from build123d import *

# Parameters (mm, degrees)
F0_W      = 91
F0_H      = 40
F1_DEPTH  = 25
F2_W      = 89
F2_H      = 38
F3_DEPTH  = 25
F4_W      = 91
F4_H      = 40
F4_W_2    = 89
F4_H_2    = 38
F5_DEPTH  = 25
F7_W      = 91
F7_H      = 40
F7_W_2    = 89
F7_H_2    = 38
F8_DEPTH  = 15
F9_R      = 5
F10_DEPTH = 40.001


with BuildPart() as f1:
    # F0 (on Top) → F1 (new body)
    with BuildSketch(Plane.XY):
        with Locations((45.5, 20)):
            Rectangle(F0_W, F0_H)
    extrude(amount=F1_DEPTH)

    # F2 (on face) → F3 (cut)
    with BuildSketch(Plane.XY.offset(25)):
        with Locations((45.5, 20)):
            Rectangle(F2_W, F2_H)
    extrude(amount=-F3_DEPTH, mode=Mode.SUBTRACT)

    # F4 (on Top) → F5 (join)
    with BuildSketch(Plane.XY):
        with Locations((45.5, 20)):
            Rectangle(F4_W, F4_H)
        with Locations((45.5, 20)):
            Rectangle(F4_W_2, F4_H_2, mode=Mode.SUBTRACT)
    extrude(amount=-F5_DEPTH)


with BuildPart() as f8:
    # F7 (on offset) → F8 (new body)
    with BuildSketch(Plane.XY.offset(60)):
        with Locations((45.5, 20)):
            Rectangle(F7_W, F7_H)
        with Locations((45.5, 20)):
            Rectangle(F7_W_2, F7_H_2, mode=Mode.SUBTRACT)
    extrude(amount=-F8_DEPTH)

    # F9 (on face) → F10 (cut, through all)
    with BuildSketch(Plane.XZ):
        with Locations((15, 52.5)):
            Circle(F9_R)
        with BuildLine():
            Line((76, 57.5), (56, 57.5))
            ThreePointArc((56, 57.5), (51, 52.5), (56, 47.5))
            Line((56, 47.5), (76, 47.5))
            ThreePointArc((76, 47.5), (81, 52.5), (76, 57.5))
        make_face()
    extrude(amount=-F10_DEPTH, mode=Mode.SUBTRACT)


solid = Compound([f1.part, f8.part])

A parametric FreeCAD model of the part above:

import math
import FreeCAD as App
import Part
import Sketcher
Q = App.Units.Quantity


def add_polygon(sketch, points):
    """Adds a closed chain of lines whose ends are joined by coincident constraints."""
    first, n = sketch.GeometryCount, len(points)
    for a, b in zip(points, points[1:] + points[:1]):
        sketch.addGeometry(Part.LineSegment(App.Vector(*a, 0), App.Vector(*b, 0)), False)
    for i in range(n):
        sketch.addConstraint(Sketcher.Constraint("Coincident", first + i, 2, first + (i + 1) % n, 1))

doc = App.newDocument("Part")
params = doc.addObject("Spreadsheet::Sheet", "Params")
for row, (alias, value) in enumerate([
    ("sketch1_width", "91 mm"),
    ("sketch1_height", "40 mm"),
    ("pad1_length", "25 mm"),
    ("sketch2_width", "89 mm"),
    ("sketch2_height", "38 mm"),
    ("pocket1_length", "25 mm"),
    ("sketch3_width", "91 mm"),
    ("sketch3_width2", "89 mm"),
    ("sketch3_height", "40 mm"),
    ("sketch3_height2", "38 mm"),
    ("pad2_length", "25 mm"),
    ("sketch4_width", "91 mm"),
    ("sketch4_width2", "89 mm"),
    ("sketch4_height", "40 mm"),
    ("sketch4_height2", "38 mm"),
    ("pad3_length", "15 mm"),
    ("sketch5_diameter", "10 mm"),
    ("sketch5_width", "20 mm"),
], start=1):
    params.set(f"A{row}", alias)
    params.set(f"B{row}", "=" + value)
    params.setAlias(f"B{row}", alias)

body = doc.addObject("PartDesign::Body", "Body")

sketch1 = body.newObject("Sketcher::SketchObject", "Sketch")
sketch1.AttachmentSupport = (doc.getObject("XY_Plane"), [""])
sketch1.MapMode = "FlatFace"
add_polygon(sketch1, [(0, 40), (0, 0), (91, 0), (91, 40)])
sketch1.addConstraint(Sketcher.Constraint("Vertical", 0))
sketch1.addConstraint(Sketcher.Constraint("Horizontal", 1))
sketch1.addConstraint(Sketcher.Constraint("Vertical", 2))
sketch1.addConstraint(Sketcher.Constraint("Horizontal", 3))
sketch1.addConstraint(Sketcher.Constraint("Coincident", 0, 2, -1, 1))
sketch1.addConstraint(Sketcher.Constraint("DistanceX", 1, 1, 1, 2, Q("91 mm")))
sketch1.addConstraint(Sketcher.Constraint("DistanceY", 0, 2, 0, 1, Q("40 mm")))
sketch1.setExpression("Constraints[9]", "Params.sketch1_width")
sketch1.setExpression("Constraints[10]", "Params.sketch1_height")
pad1 = body.newObject("PartDesign::Pad", "Pad")
pad1.Profile = sketch1
pad1.setExpression("Length", "Params.pad1_length")

sketch2 = body.newObject("Sketcher::SketchObject", "Sketch001")
sketch2.AttachmentSupport = (doc.getObject("XY_Plane"), [""])
sketch2.MapMode = "FlatFace"
sketch2.AttachmentOffset = App.Placement(App.Vector(0, 0, 25), App.Rotation())
add_polygon(sketch2, [(1, 39), (1, 1), (90, 1), (90, 39)])
sketch2.addConstraint(Sketcher.Constraint("Vertical", 0))
sketch2.addConstraint(Sketcher.Constraint("Horizontal", 1))
sketch2.addConstraint(Sketcher.Constraint("Vertical", 2))
sketch2.addConstraint(Sketcher.Constraint("Horizontal", 3))
sketch2.addConstraint(Sketcher.Constraint("DistanceX", 1, 1, 1, 2, Q("89 mm")))
sketch2.addConstraint(Sketcher.Constraint("DistanceY", 0, 2, 0, 1, Q("38 mm")))
sketch2.addConstraint(Sketcher.Constraint("DistanceX", -1, 1, 0, 2, Q("1 mm")))
sketch2.addConstraint(Sketcher.Constraint("DistanceY", -1, 1, 0, 2, Q("1 mm")))
sketch2.setExpression("Constraints[8]", "Params.sketch2_width")
sketch2.setExpression("Constraints[9]", "Params.sketch2_height")
pocket1 = body.newObject("PartDesign::Pocket", "Pocket")
pocket1.Profile = sketch2
pocket1.setExpression("Length", "Params.pocket1_length")

sketch3 = body.newObject("Sketcher::SketchObject", "Sketch002")
sketch3.AttachmentSupport = (doc.getObject("XY_Plane"), [""])
sketch3.MapMode = "FlatFace"
add_polygon(sketch3, [(0, 40), (0, 0), (91, 0), (91, 40)])
add_polygon(sketch3, [(90, 1), (1, 1), (1, 39), (90, 39)])
sketch3.addConstraint(Sketcher.Constraint("Vertical", 0))
sketch3.addConstraint(Sketcher.Constraint("Horizontal", 1))
sketch3.addConstraint(Sketcher.Constraint("Vertical", 2))
sketch3.addConstraint(Sketcher.Constraint("Horizontal", 3))
sketch3.addConstraint(Sketcher.Constraint("Horizontal", 4))
sketch3.addConstraint(Sketcher.Constraint("Vertical", 5))
sketch3.addConstraint(Sketcher.Constraint("Horizontal", 6))
sketch3.addConstraint(Sketcher.Constraint("Vertical", 7))
sketch3.addConstraint(Sketcher.Constraint("Coincident", 0, 2, -1, 1))
sketch3.addConstraint(Sketcher.Constraint("DistanceX", 1, 1, 1, 2, Q("91 mm")))
sketch3.addConstraint(Sketcher.Constraint("DistanceX", 4, 2, 4, 1, Q("89 mm")))
sketch3.addConstraint(Sketcher.Constraint("DistanceY", 0, 2, 0, 1, Q("40 mm")))
sketch3.addConstraint(Sketcher.Constraint("DistanceY", 5, 1, 5, 2, Q("38 mm")))
sketch3.addConstraint(Sketcher.Constraint("DistanceX", -1, 1, 4, 2, Q("1 mm")))
sketch3.addConstraint(Sketcher.Constraint("DistanceY", -1, 1, 4, 2, Q("1 mm")))
sketch3.setExpression("Constraints[17]", "Params.sketch3_width")
sketch3.setExpression("Constraints[18]", "Params.sketch3_width2")
sketch3.setExpression("Constraints[19]", "Params.sketch3_height")
sketch3.setExpression("Constraints[20]", "Params.sketch3_height2")
pad2 = body.newObject("PartDesign::Pad", "Pad001")
pad2.Profile = sketch3
pad2.setExpression("Length", "Params.pad2_length")
pad2.Reversed = True
body2 = doc.addObject("PartDesign::Body", "Body001")

sketch4 = body2.newObject("Sketcher::SketchObject", "Sketch003")
sketch4.AttachmentSupport = (doc.getObject("XY_Plane001"), [""])
sketch4.MapMode = "FlatFace"
sketch4.AttachmentOffset = App.Placement(App.Vector(0, 0, 60), App.Rotation())
add_polygon(sketch4, [(0, 40), (0, 0), (91, 0), (91, 40)])
add_polygon(sketch4, [(90, 1), (1, 1), (1, 39), (90, 39)])
sketch4.addConstraint(Sketcher.Constraint("Vertical", 0))
sketch4.addConstraint(Sketcher.Constraint("Horizontal", 1))
sketch4.addConstraint(Sketcher.Constraint("Vertical", 2))
sketch4.addConstraint(Sketcher.Constraint("Horizontal", 3))
sketch4.addConstraint(Sketcher.Constraint("Horizontal", 4))
sketch4.addConstraint(Sketcher.Constraint("Vertical", 5))
sketch4.addConstraint(Sketcher.Constraint("Horizontal", 6))
sketch4.addConstraint(Sketcher.Constraint("Vertical", 7))
sketch4.addConstraint(Sketcher.Constraint("Coincident", 0, 2, -1, 1))
sketch4.addConstraint(Sketcher.Constraint("DistanceX", 1, 1, 1, 2, Q("91 mm")))
sketch4.addConstraint(Sketcher.Constraint("DistanceX", 4, 2, 4, 1, Q("89 mm")))
sketch4.addConstraint(Sketcher.Constraint("DistanceY", 0, 2, 0, 1, Q("40 mm")))
sketch4.addConstraint(Sketcher.Constraint("DistanceY", 5, 1, 5, 2, Q("38 mm")))
sketch4.addConstraint(Sketcher.Constraint("DistanceX", -1, 1, 4, 2, Q("1 mm")))
sketch4.addConstraint(Sketcher.Constraint("DistanceY", -1, 1, 4, 2, Q("1 mm")))
sketch4.setExpression("Constraints[17]", "Params.sketch4_width")
sketch4.setExpression("Constraints[18]", "Params.sketch4_width2")
sketch4.setExpression("Constraints[19]", "Params.sketch4_height")
sketch4.setExpression("Constraints[20]", "Params.sketch4_height2")
pad3 = body2.newObject("PartDesign::Pad", "Pad002")
pad3.Profile = sketch4
pad3.setExpression("Length", "Params.pad3_length")
pad3.Reversed = True

sketch5 = body2.newObject("Sketcher::SketchObject", "Sketch004")
sketch5.AttachmentSupport = (doc.getObject("XZ_Plane001"), [""])
sketch5.MapMode = "FlatFace"
sketch5.addGeometry(Part.Circle(App.Vector(15, 52, 0), App.Vector(0, 0, 1), 5), False)
sketch5.addGeometry(Part.LineSegment(App.Vector(76, 58, 0), App.Vector(56, 58, 0)), False)
sketch5.addGeometry(Part.ArcOfCircle(Part.Circle(App.Vector(56, 52, 0), App.Vector(0, 0, 1), 5), math.radians(90), math.radians(270)), False)
sketch5.addGeometry(Part.LineSegment(App.Vector(56, 48, 0), App.Vector(76, 48, 0)), False)
sketch5.addGeometry(Part.ArcOfCircle(Part.Circle(App.Vector(76, 52, 0), App.Vector(0, 0, 1), 5), math.radians(-90), math.radians(90)), False)
sketch5.addConstraint(Sketcher.Constraint("Tangent", 1, 2, 2, 1))
sketch5.addConstraint(Sketcher.Constraint("Tangent", 2, 2, 3, 1))
sketch5.addConstraint(Sketcher.Constraint("Tangent", 3, 2, 4, 1))
sketch5.addConstraint(Sketcher.Constraint("Tangent", 4, 2, 1, 1))
sketch5.addConstraint(Sketcher.Constraint("Horizontal", 1))
sketch5.addConstraint(Sketcher.Constraint("Horizontal", 3))
sketch5.addConstraint(Sketcher.Constraint("Equal", 0, 2))
sketch5.addConstraint(Sketcher.Constraint("Horizontal", 0, 3, 2, 3))
sketch5.addConstraint(Sketcher.Constraint("Diameter", 0, Q("10 mm")))
sketch5.addConstraint(Sketcher.Constraint("DistanceX", 1, 2, 1, 1, Q("20 mm")))
sketch5.addConstraint(Sketcher.Constraint("DistanceX", -1, 1, 0, 3, Q("15 mm")))
sketch5.addConstraint(Sketcher.Constraint("DistanceX", -1, 1, 2, 3, Q("56 mm")))
sketch5.addConstraint(Sketcher.Constraint("DistanceY", -1, 1, 0, 3, Q("52.5 mm")))
sketch5.setExpression("Constraints[8]", "Params.sketch5_diameter")
sketch5.setExpression("Constraints[9]", "Params.sketch5_width")
pocket2 = body2.newObject("PartDesign::Pocket", "Pocket001")
pocket2.Profile = sketch5
pocket2.Type = "ThroughAll"

doc.recompute()
